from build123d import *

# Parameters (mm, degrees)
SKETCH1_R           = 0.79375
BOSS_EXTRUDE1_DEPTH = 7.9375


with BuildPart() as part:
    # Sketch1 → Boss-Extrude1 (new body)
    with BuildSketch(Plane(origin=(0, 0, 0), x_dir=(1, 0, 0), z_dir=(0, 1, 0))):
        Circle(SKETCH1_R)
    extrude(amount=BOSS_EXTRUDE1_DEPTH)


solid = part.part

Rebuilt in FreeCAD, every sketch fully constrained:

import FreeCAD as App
import Part
import Sketcher

V = App.Vector
Q = App.Units.Quantity

doc = App.newDocument("Part")
body = doc.addObject("PartDesign::Body", "Body")

# Sketch on XZ plane
sketch1 = body.newObject("Sketcher::SketchObject", "Sketch")
sketch1.AttachmentSupport = (doc.getObject("XZ_Plane"), [""])
sketch1.MapMode = "FlatFace"
sketch1.addGeometry(Part.Circle(V(0, 0, 0), V(0, 0, 1), 0.8), False)
sketch1.addConstraint(Sketcher.Constraint("Coincident", 0, 3, -1, 1))
sketch1.addConstraint(Sketcher.Constraint("Diameter", 0, Q("0.0625 in")))
pad1 = body.newObject("PartDesign::Pad", "Pad")
pad1.Profile = sketch1
pad1.Length = Q("0.3125 in")
pad1.Reversed = True

doc.recompute()
